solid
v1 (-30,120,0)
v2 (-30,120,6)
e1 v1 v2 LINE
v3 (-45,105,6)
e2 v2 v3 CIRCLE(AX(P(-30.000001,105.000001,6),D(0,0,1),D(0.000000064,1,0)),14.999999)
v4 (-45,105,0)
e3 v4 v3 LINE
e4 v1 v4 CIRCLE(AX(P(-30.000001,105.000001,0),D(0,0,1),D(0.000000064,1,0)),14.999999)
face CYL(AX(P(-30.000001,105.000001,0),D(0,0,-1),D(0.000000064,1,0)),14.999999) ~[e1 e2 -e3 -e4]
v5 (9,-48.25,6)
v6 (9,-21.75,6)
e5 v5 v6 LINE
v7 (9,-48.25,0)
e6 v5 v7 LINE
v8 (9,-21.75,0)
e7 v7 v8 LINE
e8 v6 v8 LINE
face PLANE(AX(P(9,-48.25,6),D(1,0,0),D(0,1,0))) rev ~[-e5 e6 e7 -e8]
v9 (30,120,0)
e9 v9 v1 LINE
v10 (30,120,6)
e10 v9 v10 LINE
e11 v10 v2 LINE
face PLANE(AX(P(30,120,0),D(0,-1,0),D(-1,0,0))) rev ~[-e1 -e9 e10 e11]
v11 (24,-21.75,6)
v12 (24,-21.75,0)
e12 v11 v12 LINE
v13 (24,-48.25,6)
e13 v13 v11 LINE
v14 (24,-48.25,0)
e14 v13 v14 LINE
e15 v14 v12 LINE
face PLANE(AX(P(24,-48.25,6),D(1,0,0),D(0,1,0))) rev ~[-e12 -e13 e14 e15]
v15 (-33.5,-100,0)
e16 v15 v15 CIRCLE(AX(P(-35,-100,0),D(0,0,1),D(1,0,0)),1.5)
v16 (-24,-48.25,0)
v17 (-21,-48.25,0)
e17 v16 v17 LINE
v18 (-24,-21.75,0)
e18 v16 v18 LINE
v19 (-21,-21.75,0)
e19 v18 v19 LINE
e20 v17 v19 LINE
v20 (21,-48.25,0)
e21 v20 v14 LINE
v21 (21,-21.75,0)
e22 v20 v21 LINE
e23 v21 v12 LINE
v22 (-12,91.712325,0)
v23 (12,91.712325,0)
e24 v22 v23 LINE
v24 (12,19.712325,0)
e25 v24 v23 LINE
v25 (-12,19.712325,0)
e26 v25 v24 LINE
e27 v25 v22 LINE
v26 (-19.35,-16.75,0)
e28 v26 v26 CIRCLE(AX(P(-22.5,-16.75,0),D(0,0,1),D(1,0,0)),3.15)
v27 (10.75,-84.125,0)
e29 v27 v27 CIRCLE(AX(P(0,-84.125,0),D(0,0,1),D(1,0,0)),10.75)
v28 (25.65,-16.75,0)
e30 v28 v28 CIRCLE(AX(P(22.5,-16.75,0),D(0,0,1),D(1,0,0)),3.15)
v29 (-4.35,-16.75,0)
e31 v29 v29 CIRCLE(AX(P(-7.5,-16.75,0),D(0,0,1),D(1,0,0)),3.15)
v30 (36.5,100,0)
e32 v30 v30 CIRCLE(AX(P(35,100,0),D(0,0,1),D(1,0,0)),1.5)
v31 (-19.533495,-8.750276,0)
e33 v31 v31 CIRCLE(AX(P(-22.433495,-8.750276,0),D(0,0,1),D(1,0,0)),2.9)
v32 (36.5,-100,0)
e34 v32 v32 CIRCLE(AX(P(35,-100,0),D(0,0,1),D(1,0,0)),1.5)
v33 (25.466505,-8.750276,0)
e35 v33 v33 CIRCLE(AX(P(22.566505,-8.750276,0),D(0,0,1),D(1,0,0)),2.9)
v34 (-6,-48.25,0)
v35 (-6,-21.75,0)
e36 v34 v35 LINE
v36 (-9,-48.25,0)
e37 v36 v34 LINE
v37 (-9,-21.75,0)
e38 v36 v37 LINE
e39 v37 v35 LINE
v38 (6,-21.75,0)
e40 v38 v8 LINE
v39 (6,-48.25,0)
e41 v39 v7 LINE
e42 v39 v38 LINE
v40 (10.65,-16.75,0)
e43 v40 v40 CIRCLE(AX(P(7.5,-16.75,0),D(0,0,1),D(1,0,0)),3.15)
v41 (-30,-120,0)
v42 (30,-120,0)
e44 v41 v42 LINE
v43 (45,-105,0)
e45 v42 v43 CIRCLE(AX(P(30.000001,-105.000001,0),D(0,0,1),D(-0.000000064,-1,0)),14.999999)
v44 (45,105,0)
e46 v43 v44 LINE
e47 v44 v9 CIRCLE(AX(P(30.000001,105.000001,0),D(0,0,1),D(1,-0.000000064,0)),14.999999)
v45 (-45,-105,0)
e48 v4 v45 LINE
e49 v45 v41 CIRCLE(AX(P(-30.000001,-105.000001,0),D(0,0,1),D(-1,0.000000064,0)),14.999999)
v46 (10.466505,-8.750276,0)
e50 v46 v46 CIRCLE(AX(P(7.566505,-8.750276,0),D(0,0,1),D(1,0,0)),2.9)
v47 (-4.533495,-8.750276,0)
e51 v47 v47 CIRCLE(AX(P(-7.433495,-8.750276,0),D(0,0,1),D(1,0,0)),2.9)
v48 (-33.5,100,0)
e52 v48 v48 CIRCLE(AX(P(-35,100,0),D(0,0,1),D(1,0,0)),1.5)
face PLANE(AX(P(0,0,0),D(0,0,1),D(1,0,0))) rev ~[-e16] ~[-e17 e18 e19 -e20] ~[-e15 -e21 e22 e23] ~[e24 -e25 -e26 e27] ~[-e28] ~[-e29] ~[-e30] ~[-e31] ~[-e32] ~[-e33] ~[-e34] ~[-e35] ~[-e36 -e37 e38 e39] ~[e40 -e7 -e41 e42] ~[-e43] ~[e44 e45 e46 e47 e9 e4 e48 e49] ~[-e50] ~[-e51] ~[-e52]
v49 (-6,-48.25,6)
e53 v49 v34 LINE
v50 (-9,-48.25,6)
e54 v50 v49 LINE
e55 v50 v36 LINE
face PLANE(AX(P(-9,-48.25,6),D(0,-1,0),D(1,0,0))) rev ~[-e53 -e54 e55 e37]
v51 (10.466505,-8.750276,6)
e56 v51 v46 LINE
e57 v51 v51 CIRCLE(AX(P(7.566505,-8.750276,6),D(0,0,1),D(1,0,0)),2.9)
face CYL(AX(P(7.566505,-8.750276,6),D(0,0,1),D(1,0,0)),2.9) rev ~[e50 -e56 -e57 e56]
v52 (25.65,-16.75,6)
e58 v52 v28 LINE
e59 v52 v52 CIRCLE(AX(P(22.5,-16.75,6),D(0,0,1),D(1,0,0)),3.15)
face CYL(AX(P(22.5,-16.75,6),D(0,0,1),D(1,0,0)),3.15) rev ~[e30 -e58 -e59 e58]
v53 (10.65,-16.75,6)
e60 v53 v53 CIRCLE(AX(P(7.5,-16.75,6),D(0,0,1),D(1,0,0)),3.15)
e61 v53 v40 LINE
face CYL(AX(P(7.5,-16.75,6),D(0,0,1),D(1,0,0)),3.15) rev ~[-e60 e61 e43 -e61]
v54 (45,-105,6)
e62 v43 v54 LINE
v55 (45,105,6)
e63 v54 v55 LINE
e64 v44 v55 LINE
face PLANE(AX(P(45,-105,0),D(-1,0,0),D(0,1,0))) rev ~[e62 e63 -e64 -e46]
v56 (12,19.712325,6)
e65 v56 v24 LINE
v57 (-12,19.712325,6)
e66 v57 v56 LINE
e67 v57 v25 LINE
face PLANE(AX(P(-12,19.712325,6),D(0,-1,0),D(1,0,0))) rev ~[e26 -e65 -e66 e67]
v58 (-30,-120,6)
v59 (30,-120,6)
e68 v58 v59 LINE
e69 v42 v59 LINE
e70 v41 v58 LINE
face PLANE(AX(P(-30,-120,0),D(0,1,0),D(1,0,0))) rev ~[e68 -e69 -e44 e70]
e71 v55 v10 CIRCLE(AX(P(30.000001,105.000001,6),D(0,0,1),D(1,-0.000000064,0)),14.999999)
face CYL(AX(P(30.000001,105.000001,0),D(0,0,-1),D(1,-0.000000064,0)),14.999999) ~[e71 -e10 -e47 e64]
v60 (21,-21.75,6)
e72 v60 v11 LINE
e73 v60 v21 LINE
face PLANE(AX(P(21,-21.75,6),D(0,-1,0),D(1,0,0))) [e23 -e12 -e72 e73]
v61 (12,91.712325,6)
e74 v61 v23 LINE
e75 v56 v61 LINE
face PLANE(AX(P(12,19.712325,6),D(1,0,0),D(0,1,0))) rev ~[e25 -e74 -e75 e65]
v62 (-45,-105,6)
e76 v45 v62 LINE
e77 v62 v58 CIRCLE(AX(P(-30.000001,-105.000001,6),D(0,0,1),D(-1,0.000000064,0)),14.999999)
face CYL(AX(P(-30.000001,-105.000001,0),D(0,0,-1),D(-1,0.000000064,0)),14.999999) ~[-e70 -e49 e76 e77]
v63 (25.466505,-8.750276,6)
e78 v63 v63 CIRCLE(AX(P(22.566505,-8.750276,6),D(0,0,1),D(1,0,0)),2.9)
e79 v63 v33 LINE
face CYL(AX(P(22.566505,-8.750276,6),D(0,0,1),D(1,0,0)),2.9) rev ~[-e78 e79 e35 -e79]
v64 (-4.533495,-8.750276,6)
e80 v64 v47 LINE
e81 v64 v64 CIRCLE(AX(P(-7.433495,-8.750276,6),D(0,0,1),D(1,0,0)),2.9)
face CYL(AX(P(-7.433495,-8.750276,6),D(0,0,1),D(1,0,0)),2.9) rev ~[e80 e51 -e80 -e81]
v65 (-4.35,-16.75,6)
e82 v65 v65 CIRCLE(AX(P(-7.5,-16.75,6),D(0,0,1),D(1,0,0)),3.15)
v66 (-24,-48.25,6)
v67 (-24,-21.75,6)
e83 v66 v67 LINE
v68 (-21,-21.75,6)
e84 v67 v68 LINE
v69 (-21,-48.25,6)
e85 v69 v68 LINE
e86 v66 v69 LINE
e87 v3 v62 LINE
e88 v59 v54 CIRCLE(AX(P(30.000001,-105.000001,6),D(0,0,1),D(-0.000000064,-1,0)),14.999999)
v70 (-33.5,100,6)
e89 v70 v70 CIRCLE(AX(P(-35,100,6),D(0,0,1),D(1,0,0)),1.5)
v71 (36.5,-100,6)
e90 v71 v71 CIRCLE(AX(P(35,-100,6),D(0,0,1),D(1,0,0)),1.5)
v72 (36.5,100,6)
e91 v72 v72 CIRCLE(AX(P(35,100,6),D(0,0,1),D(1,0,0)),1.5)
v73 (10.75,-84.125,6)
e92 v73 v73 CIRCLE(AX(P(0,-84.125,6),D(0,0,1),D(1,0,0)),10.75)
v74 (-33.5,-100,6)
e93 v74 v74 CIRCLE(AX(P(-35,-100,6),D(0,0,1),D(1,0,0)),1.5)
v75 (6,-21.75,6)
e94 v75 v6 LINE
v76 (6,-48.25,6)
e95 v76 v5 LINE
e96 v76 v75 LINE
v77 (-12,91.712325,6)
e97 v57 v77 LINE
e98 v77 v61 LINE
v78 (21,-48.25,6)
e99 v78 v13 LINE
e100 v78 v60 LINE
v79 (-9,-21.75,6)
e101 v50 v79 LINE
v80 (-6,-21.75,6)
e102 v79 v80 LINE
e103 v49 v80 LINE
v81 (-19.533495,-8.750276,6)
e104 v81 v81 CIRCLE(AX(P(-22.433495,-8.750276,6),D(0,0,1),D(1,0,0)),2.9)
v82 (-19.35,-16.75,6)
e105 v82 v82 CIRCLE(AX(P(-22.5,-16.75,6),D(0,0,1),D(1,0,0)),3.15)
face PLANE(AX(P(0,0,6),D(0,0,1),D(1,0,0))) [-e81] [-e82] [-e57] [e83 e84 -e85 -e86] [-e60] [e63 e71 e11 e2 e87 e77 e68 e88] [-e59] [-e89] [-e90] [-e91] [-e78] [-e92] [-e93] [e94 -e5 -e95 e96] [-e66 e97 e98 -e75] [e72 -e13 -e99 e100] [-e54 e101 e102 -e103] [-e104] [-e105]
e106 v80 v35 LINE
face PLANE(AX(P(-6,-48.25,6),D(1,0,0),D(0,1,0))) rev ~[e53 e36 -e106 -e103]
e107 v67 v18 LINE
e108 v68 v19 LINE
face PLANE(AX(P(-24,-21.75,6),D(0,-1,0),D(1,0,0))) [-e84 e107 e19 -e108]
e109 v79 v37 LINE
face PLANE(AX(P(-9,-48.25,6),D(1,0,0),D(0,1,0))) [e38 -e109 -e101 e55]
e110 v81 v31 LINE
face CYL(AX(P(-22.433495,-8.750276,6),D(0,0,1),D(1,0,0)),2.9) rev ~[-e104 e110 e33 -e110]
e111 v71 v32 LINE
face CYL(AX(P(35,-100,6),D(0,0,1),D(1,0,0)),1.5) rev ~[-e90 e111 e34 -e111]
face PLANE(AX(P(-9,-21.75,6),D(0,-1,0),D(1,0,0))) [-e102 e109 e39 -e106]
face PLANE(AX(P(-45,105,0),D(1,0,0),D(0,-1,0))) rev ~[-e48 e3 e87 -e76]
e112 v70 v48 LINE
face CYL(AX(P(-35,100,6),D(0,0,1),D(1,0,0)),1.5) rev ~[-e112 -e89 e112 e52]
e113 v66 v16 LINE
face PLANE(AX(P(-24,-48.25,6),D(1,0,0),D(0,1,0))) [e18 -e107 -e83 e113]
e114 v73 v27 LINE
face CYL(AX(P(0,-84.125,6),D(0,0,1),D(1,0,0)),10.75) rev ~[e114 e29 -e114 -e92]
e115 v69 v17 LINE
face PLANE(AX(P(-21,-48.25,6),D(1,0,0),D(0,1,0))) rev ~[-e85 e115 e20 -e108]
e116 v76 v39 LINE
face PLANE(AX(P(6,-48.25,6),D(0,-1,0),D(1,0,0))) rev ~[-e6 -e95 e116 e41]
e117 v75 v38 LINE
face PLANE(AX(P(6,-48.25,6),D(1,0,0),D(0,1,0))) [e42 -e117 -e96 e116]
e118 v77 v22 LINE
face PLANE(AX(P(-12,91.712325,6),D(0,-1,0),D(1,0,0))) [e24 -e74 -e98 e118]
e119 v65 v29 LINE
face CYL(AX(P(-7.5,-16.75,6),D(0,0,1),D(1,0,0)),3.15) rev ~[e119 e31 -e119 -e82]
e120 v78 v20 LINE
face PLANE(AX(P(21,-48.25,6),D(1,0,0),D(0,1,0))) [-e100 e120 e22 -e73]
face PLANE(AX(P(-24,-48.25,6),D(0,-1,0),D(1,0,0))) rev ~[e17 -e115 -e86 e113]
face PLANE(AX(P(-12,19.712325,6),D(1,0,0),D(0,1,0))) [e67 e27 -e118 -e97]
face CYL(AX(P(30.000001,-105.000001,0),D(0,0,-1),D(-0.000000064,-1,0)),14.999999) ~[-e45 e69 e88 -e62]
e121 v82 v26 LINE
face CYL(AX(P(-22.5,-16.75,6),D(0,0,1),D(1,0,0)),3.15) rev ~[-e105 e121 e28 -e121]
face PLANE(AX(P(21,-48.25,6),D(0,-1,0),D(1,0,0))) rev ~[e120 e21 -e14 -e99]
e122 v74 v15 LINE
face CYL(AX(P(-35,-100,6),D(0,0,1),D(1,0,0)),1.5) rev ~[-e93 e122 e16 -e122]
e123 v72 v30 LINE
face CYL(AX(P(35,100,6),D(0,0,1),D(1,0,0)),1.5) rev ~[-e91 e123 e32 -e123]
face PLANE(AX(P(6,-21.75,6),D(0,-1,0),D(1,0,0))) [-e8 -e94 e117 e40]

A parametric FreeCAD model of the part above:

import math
import FreeCAD as App
import Part
import Sketcher
from FreeCAD import Vector


def add_polygon(sketch, points):
    """Adds a closed chain of lines whose ends are joined by coincident constraints."""
    first, n = sketch.GeometryCount, len(points)
    for a, b in zip(points, points[1:] + points[:1]):
        sketch.addGeometry(Part.LineSegment(App.Vector(*a, 0), App.Vector(*b, 0)), False)
    for i in range(n):
        sketch.addConstraint(Sketcher.Constraint("Coincident", first + i, 2, first + (i + 1) % n, 1))

doc = App.newDocument("Part")
body = doc.addObject("PartDesign::Body", "Body")

sketch1 = doc.addObject("Sketcher::SketchObject", "Sketch")
body.addObject(sketch1)
sketch1.AttachmentSupport = (doc.XY_Plane, [""])
sketch1.MapMode = "FlatFace"
sketch1.addGeometry([
    Part.LineSegment(Vector(-30, -120, 0), Vector(30, -120, 0)),
    Part.ArcOfCircle(Part.Circle(Vector(30, -105, 0), Vector(0, 0, 1), 15), math.radians(-90), math.radians(0)),
    Part.LineSegment(Vector(45, -105, 0), Vector(45, 105, 0)),
    Part.ArcOfCircle(Part.Circle(Vector(30, 105, 0), Vector(0, 0, 1), 15), math.radians(0), math.radians(90)),
    Part.LineSegment(Vector(30, 120, 0), Vector(-30, 120, 0)),
    Part.ArcOfCircle(Part.Circle(Vector(-30, 105, 0), Vector(0, 0, 1), 15), math.radians(90), math.radians(180)),
    Part.LineSegment(Vector(-45, 105, 0), Vector(-45, -105, 0)),
    Part.ArcOfCircle(Part.Circle(Vector(-30, -105, 0), Vector(0, 0, 1), 15), math.radians(180), math.radians(270)),
], False)
sketch1.addConstraint([
    Sketcher.Constraint("Tangent", 0, 2, 1, 1),
    Sketcher.Constraint("Tangent", 1, 2, 2, 1),
    Sketcher.Constraint("Tangent", 2, 2, 3, 1),
    Sketcher.Constraint("Tangent", 3, 2, 4, 1),
    Sketcher.Constraint("Tangent", 4, 2, 5, 1),
    Sketcher.Constraint("Tangent", 5, 2, 6, 1),
    Sketcher.Constraint("Tangent", 6, 2, 7, 1),
    Sketcher.Constraint("Tangent", 7, 2, 0, 1),
    Sketcher.Constraint("Horizontal", 0),
    Sketcher.Constraint("Vertical", 2),
    Sketcher.Constraint("Horizontal", 4),
    Sketcher.Constraint("Vertical", 6),
    Sketcher.Constraint("Equal", 1, 3),
    Sketcher.Constraint("Equal", 3, 5),
    Sketcher.Constraint("Equal", 5, 7),
    Sketcher.Constraint("Symmetric", 1, 3, 5, 3, -1, 1),
    Sketcher.Constraint("Radius", 1, 14.999999),
    Sketcher.Constraint("DistanceX", 0, 1, 0, 2, 60.0),
    Sketcher.Constraint("DistanceY", 2, 1, 2, 2, 210.0),
])
pad1 = doc.addObject("PartDesign::Pad", "Pad")
body.addObject(pad1)
pad1.Profile = sketch1
pad1.Length = 6

sketch2 = doc.addObject("Sketcher::SketchObject", "Sketch001")
body.addObject(sketch2)
sketch2.AttachmentSupport = (doc.XY_Plane, [""])
sketch2.MapMode = "FlatFace"
sketch2.AttachmentOffset = App.Placement(Vector(0, 0, 6), App.Rotation())
add_polygon(sketch2, [(-12, 92), (-12, 20), (12, 20), (12, 92)])
sketch2.addConstraint([
    Sketcher.Constraint("Vertical", 0),
    Sketcher.Constraint("Horizontal", 1),
    Sketcher.Constraint("Vertical", 2),
    Sketcher.Constraint("Horizontal", 3),
    Sketcher.Constraint("DistanceX", 1, 1, 1, 2, 24.0),
    Sketcher.Constraint("DistanceY", 0, 2, 0, 1, 72.0),
    Sketcher.Constraint("DistanceX", 0, 2, -1, 1, 12.0),
    Sketcher.Constraint("DistanceY", -1, 1, 0, 2, 19.712325),
])
pocket1 = doc.addObject("PartDesign::Pocket", "Pocket")
body.addObject(pocket1)
pocket1.Profile = sketch2
pocket1.Type = "ThroughAll"

sketch3 = doc.addObject("Sketcher::SketchObject", "Sketch002")
body.addObject(sketch3)
sketch3.AttachmentSupport = (doc.XY_Plane, [""])
sketch3.MapMode = "FlatFace"
sketch3.AttachmentOffset = App.Placement(Vector(0, 0, 6), App.Rotation())
add_polygon(sketch3, [(-24, -21.8), (-24, -48.2), (-21, -48.2), (-21, -21.8)])
sketch3.addGeometry(Part.Circle(Vector(-22.4, -8.8, 0), Vector(0, 0, 1), 2.9), False)
sketch3.addGeometry(Part.Circle(Vector(-22.5, -16.8, 0), Vector(0, 0, 1), 3.1), False)
sketch3.addGeometry(Part.Circle(Vector(-7.5, -16.8, 0), Vector(0, 0, 1), 3.1), False)
add_polygon(sketch3, [(-9, -21.8), (-9, -48.2), (-6, -48.2), (-6, -21.8)])
sketch3.addGeometry(Part.Circle(Vector(-7.4, -8.8, 0), Vector(0, 0, 1), 2.9), False)
sketch3.addGeometry(Part.Circle(Vector(7.5, -16.8, 0), Vector(0, 0, 1), 3.1), False)
add_polygon(sketch3, [(6, -21.8), (6, -48.2), (9, -48.2), (9, -21.8)])
sketch3.addGeometry(Part.Circle(Vector(7.6, -8.8, 0), Vector(0, 0, 1), 2.9), False)
sketch3.addGeometry(Part.Circle(Vector(22.5, -16.8, 0), Vector(0, 0, 1), 3.1), False)
add_polygon(sketch3, [(21, -21.8), (21, -48.2), (24, -48.2), (24, -21.8)])
sketch3.addGeometry(Part.Circle(Vector(22.6, -8.8, 0), Vector(0, 0, 1), 2.9), False)
sketch3.addConstraint([
    Sketcher.Constraint("Vertical", 0),
    Sketcher.Constraint("Horizontal", 1),
    Sketcher.Constraint("Vertical", 2),
    Sketcher.Constraint("Horizontal", 3),
    Sketcher.Constraint("Vertical", 7),
    Sketcher.Constraint("Horizontal", 8),
    Sketcher.Constraint("Vertical", 9),
    Sketcher.Constraint("Horizontal", 10),
    Sketcher.Constraint("Vertical", 13),
    Sketcher.Constraint("Horizontal", 14),
    Sketcher.Constraint("Vertical", 15),
    Sketcher.Constraint("Horizontal", 16),
    Sketcher.Constraint("Vertical", 19),
    Sketcher.Constraint("Horizontal", 20),
    Sketcher.Constraint("Vertical", 21),
    Sketcher.Constraint("Horizontal", 22),
    Sketcher.Constraint("Equal", 5, 6),
    Sketcher.Constraint("Equal", 4, 11),
    Sketcher.Constraint("Equal", 6, 12),
    Sketcher.Constraint("Equal", 11, 17),
    Sketcher.Constraint("Equal", 12, 18),
    Sketcher.Constraint("Equal", 17, 23),
    Sketcher.Constraint("Symmetric", 6, 3, 12, 3, -2),
    Sketcher.Constraint("Symmetric", 5, 3, 18, 3, -2),
    Sketcher.Constraint("Symmetric", 8, 2, 13, 2, -2),
    Sketcher.Constraint("Symmetric", 10, 2, 15, 2, -2),
    Sketcher.Constraint("Symmetric", 1, 2, 19, 2, -2),
    Sketcher.Constraint("Symmetric", 3, 2, 21, 2, -2),
    Sketcher.Constraint("Horizontal", 5, 3, 6, 3),
    Sketcher.Constraint("Horizontal", 4, 3, 11, 3),
    Sketcher.Constraint("Horizontal", 11, 3, 17, 3),
    Sketcher.Constraint("Horizontal", 17, 3, 23, 3),
    Sketcher.Constraint("Horizontal", 1, 2, 7, 2),
    Sketcher.Constraint("Horizontal", 3, 2, 9, 2),
    Sketcher.Constraint("Equal", 3, 8),
    Sketcher.Constraint("Diameter", 4, 5.8),
    Sketcher.Constraint("Diameter", 5, 6.3),
    Sketcher.Constraint("DistanceX", 1, 1, 1, 2, 3.0),
    Sketcher.Constraint("DistanceY", 0, 2, 0, 1, 26.5),
    Sketcher.Constraint("DistanceX", 0, 2, -1, 1, 24.0),
    Sketcher.Constraint("DistanceX", 7, 2, -1, 1, 9.0),
    Sketcher.Constraint("DistanceX", 5, 3, 6, 3, 15.0),
    Sketcher.Constraint("DistanceX", 4, 3, 11, 3, 15.0),
    Sketcher.Constraint("DistanceX", 6, 3, 12, 3, 15.0),
    Sketcher.Constraint("DistanceX", 11, 3, 17, 3, 15.0),
    Sketcher.Constraint("DistanceX", 17, 3, 23, 3, 15.0),
    Sketcher.Constraint("DistanceY", 2, 2, 5, 3, 5.0),
    Sketcher.Constraint("DistanceY", 5, 3, -1, 1, 16.75),
    Sketcher.Constraint("DistanceX", 4, 3, -1, 1, 22.433495),
    Sketcher.Constraint("DistanceY", 4, 3, -1, 1, 8.750276),
])
pocket2 = doc.addObject("PartDesign::Pocket", "Pocket001")
body.addObject(pocket2)
pocket2.Profile = sketch3
pocket2.Type = "ThroughAll"

sketch4 = doc.addObject("Sketcher::SketchObject", "Sketch003")
body.addObject(sketch4)
sketch4.AttachmentSupport = (doc.XY_Plane, [""])
sketch4.MapMode = "FlatFace"
sketch4.AttachmentOffset = App.Placement(Vector(0, 0, 6), App.Rotation())
sketch4.addGeometry(Part.Circle(Vector(0, -84, 0), Vector(0, 0, 1), 11), False)
sketch4.addConstraint([
    Sketcher.Constraint("PointOnObject", 0, 3, -2),
    Sketcher.Constraint("Diameter", 0, 21.5),
    Sketcher.Constraint("DistanceY", 0, 3, -1, 1, 84.125),
])
pocket3 = doc.addObject("PartDesign::Pocket", "Pocket002")
body.addObject(pocket3)
pocket3.Profile = sketch4
pocket3.Type = "ThroughAll"

sketch5 = doc.addObject("Sketcher::SketchObject", "Sketch004")
body.addObject(sketch5)
sketch5.AttachmentSupport = (doc.XY_Plane, [""])
sketch5.MapMode = "FlatFace"
sketch5.AttachmentOffset = App.Placement(Vector(0, 0, 6), App.Rotation())
sketch5.addGeometry([
    Part.Circle(Vector(-35, -100, 0), Vector(0, 0, 1), 1.5),
    Part.Circle(Vector(35, -100, 0), Vector(0, 0, 1), 1.5),
    Part.Circle(Vector(35, 100, 0), Vector(0, 0, 1), 1.5),
    Part.Circle(Vector(-35, 100, 0), Vector(0, 0, 1), 1.5),
], False)
sketch5.addConstraint([
    Sketcher.Constraint("Equal", 0, 1),
    Sketcher.Constraint("Equal", 1, 2),
    Sketcher.Constraint("Equal", 2, 3),
    Sketcher.Constraint("Symmetric", 0, 3, 2, 3, -1, 1),
    Sketcher.Constraint("Symmetric", 1, 3, 3, 3, -1, 1),
    Sketcher.Constraint("Symmetric", 0, 3, 1, 3, -2),
    Sketcher.Constraint("Diameter", 0, 3.0),
    Sketcher.Constraint("DistanceX", 0, 3, -1, 1, 35.0),
    Sketcher.Constraint("DistanceY", 0, 3, -1, 1, 100.0),
])
pocket4 = doc.addObject("PartDesign::Pocket", "Pocket003")
body.addObject(pocket4)
pocket4.Profile = sketch5
pocket4.Type = "ThroughAll"

doc.recompute()
